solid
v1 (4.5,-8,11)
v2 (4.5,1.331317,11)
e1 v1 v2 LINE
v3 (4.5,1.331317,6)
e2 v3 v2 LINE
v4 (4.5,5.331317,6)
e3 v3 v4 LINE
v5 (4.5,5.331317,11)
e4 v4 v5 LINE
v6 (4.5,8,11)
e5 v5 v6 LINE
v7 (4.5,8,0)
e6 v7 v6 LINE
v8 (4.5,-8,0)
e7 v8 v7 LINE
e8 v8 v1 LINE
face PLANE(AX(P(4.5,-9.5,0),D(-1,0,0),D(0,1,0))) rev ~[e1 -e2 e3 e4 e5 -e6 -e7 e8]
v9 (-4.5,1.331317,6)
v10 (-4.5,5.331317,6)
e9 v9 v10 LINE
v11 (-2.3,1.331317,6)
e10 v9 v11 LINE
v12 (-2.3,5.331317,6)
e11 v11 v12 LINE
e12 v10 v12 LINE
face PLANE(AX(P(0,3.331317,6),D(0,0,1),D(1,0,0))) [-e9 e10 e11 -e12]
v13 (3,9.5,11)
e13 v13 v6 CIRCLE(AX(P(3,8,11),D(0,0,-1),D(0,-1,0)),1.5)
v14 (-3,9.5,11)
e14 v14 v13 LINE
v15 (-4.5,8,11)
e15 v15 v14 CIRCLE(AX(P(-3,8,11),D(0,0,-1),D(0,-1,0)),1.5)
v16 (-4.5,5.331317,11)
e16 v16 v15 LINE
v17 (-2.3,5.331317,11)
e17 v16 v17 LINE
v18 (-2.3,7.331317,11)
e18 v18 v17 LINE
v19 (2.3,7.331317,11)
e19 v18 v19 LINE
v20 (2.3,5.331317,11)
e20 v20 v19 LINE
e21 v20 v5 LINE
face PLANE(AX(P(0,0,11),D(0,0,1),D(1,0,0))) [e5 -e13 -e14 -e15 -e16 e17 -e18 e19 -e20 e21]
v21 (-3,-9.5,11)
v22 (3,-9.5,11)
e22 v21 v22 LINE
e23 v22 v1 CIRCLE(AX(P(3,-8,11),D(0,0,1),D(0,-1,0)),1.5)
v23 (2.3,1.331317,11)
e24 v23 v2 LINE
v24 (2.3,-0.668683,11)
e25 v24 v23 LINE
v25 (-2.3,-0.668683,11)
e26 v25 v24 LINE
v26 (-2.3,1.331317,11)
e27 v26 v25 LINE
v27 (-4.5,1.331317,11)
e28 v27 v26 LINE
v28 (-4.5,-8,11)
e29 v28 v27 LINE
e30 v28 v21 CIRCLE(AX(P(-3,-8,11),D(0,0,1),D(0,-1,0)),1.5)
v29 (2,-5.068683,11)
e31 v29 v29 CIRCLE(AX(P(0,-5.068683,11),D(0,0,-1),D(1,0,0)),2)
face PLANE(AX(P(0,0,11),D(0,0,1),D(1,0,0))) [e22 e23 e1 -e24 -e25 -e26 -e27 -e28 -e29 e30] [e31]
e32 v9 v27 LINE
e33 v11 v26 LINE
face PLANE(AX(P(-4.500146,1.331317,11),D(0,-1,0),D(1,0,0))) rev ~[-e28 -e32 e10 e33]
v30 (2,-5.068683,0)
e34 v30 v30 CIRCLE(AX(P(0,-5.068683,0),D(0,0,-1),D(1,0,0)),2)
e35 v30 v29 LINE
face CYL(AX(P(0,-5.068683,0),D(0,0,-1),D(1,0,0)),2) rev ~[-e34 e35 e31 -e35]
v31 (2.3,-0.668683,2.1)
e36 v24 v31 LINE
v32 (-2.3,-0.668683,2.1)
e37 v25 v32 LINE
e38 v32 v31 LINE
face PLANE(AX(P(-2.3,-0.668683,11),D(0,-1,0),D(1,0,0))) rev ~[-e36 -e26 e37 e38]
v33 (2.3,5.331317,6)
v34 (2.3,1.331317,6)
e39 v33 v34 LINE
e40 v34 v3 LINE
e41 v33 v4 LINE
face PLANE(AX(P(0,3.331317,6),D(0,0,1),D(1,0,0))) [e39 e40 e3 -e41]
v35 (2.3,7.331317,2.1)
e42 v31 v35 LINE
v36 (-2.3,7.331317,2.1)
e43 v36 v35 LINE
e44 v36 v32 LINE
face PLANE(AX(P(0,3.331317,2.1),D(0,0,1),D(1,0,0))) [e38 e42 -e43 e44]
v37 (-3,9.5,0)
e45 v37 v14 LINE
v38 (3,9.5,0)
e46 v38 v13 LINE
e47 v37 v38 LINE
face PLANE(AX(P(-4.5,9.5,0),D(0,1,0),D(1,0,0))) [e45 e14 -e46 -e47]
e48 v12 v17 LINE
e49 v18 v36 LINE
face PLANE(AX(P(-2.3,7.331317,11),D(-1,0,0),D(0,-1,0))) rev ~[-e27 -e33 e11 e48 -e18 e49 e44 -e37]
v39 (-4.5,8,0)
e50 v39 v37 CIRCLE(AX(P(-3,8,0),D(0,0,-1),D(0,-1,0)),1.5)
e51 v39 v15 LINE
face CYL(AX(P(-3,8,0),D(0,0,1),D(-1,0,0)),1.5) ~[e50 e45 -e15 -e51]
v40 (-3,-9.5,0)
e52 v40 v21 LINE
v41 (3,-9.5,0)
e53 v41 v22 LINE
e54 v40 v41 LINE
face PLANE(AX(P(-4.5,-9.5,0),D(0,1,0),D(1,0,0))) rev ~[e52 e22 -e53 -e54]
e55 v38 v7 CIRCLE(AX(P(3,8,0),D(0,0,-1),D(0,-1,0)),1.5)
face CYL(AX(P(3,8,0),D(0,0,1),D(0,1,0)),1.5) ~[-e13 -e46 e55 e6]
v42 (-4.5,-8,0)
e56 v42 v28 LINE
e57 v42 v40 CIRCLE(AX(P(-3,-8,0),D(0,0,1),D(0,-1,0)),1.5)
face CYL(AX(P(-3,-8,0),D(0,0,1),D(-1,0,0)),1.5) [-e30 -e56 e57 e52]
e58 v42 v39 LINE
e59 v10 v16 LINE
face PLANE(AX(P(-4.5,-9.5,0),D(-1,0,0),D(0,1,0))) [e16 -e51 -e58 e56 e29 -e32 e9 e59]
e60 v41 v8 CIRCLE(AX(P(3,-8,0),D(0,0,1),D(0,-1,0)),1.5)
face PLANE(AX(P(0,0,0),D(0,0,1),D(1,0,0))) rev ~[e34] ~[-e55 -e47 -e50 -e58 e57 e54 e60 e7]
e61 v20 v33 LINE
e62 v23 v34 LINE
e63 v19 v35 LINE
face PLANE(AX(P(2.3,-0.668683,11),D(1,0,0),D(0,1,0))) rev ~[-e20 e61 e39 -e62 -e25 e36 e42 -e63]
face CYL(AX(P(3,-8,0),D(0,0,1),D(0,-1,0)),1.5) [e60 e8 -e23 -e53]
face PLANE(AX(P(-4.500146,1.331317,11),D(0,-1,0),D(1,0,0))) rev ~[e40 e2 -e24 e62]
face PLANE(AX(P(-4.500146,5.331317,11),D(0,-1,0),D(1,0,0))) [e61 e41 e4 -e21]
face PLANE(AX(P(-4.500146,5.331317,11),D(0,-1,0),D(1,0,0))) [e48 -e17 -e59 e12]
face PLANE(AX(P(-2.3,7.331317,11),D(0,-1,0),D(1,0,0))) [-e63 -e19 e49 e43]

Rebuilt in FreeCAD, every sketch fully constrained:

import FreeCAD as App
import Part
import Sketcher
Q = App.Units.Quantity


def edges_at(feature, points):
    """Names of the edges that pass closest to the given points."""
    edges = feature.Shape.Edges
    near = lambda p: min(range(len(edges)), key=lambda i: edges[i].distToShape(Part.Vertex(*p))[0])
    return sorted({f"Edge{near(p) + 1}" for p in points})


def add_polygon(sketch, points):
    """Adds a closed chain of lines whose ends are joined by coincident constraints."""
    first, n = sketch.GeometryCount, len(points)
    for a, b in zip(points, points[1:] + points[:1]):
        sketch.addGeometry(Part.LineSegment(App.Vector(*a, 0), App.Vector(*b, 0)), False)
    for i in range(n):
        sketch.addConstraint(Sketcher.Constraint("Coincident", first + i, 2, first + (i + 1) % n, 1))

doc = App.newDocument("Part")
body = doc.addObject("PartDesign::Body", "Body")

# Sketch on XY plane
sketch1 = doc.addObject("Sketcher::SketchObject", "Sketch")
body.addObject(sketch1)
sketch1.AttachmentSupport = (doc.XY_Plane, [""])
sketch1.MapMode = "FlatFace"
add_polygon(sketch1, [(-4, 10), (-4, -10), (4, -10), (4, 10)])  # lines 0-3
sketch1.addConstraint(Sketcher.Constraint("Vertical", 0))
sketch1.addConstraint(Sketcher.Constraint("Horizontal", 1))
sketch1.addConstraint(Sketcher.Constraint("Vertical", 2))
sketch1.addConstraint(Sketcher.Constraint("Horizontal", 3))
sketch1.addConstraint(Sketcher.Constraint("Symmetric", 0, 2, 2, 2, -1, 1))
sketch1.addConstraint(Sketcher.Constraint("DistanceX", 1, 1, 1, 2, Q("9 mm")))
sketch1.addConstraint(Sketcher.Constraint("DistanceY", 0, 2, 0, 1, Q("19 mm")))
pad1 = doc.addObject("PartDesign::Pad", "Pad")
body.addObject(pad1)
pad1.Profile = sketch1
pad1.Length = 11

# Sketch on XY plane
sketch2 = doc.addObject("Sketcher::SketchObject", "Sketch001")
body.addObject(sketch2)
sketch2.AttachmentSupport = (doc.XY_Plane, [""])
sketch2.MapMode = "FlatFace"
sketch2.addGeometry(Part.Circle(App.Vector(0, -5.1, 0), App.Vector(0, 0, 1), 2), False)
sketch2.addConstraint(Sketcher.Constraint("PointOnObject", 0, 3, -2))
sketch2.addConstraint(Sketcher.Constraint("Diameter", 0, Q("4 mm")))
sketch2.addConstraint(Sketcher.Constraint("DistanceY", 0, 3, -1, 1, Q("5.068683 mm")))
pocket1 = doc.addObject("PartDesign::Pocket", "Pocket")
body.addObject(pocket1)
pocket1.Profile = sketch2
pocket1.Length = 11
pocket1.Reversed = True

# Sketch on XY plane
sketch3 = doc.addObject("Sketcher::SketchObject", "Sketch002")
body.addObject(sketch3)
sketch3.AttachmentSupport = (doc.XY_Plane, [""])
sketch3.MapMode = "FlatFace"
sketch3.AttachmentOffset = App.Placement(App.Vector(0, 0, 11), App.Rotation())
add_polygon(sketch3, [(2.3, 7.3), (-2.3, 7.3), (-2.3, -0.7), (2.3, -0.7)])  # lines 0-3
sketch3.addConstraint(Sketcher.Constraint("Horizontal", 0))
sketch3.addConstraint(Sketcher.Constraint("Vertical", 1))
sketch3.addConstraint(Sketcher.Constraint("Horizontal", 2))
sketch3.addConstraint(Sketcher.Constraint("Vertical", 3))
sketch3.addConstraint(Sketcher.Constraint("DistanceY", 1, 2, 1, 1, Q("8 mm")))
sketch3.addConstraint(Sketcher.Constraint("DistanceX", 0, 2, 0, 1, Q("4.6 mm")))
sketch3.addConstraint(Sketcher.Constraint("DistanceX", 0, 2, -1, 1, Q("2.3 mm")))
sketch3.addConstraint(Sketcher.Constraint("DistanceY", -1, 1, 0, 2, Q("7.331317 mm")))
pocket2 = doc.addObject("PartDesign::Pocket", "Pocket001")
body.addObject(pocket2)
pocket2.Profile = sketch3
pocket2.Length = 8.9

# Sketch on XY plane
sketch4 = doc.addObject("Sketcher::SketchObject", "Sketch003")
body.addObject(sketch4)
sketch4.AttachmentSupport = (doc.XY_Plane, [""])
sketch4.MapMode = "FlatFace"
sketch4.AttachmentOffset = App.Placement(App.Vector(0, 0, 11), App.Rotation())
add_polygon(sketch4, [(-4.5, 5.3), (-4.5, 1.3), (4.5, 1.3), (4.5, 5.3)])  # lines 0-3
sketch4.addConstraint(Sketcher.Constraint("Vertical", 0))
sketch4.addConstraint(Sketcher.Constraint("Horizontal", 1))
sketch4.addConstraint(Sketcher.Constraint("Vertical", 2))
sketch4.addConstraint(Sketcher.Constraint("Horizontal", 3))
sketch4.addConstraint(Sketcher.Constraint("DistanceY", 0, 2, 0, 1, Q("4 mm")))
sketch4.addConstraint(Sketcher.Constraint("DistanceX", 1, 1, 1, 2, Q("9.000292 mm")))
sketch4.addConstraint(Sketcher.Constraint("DistanceX", 0, 2, -1, 1, Q("4.500146 mm")))
sketch4.addConstraint(Sketcher.Constraint("DistanceY", -1, 1, 0, 2, Q("1.331317 mm")))
pocket3 = doc.addObject("PartDesign::Pocket", "Pocket002")
body.addObject(pocket3)
pocket3.Profile = sketch4
pocket3.Length = 5
doc.recompute()

fillet = doc.addObject("PartDesign::Fillet", "Fillet")
body.addObject(fillet)
fillet.Base = (pocket3, edges_at(pocket3, [
    (4.5, 9.5, 5.5),
    (-4.5, 9.5, 5.5),
    (4.5, -9.5, 5.5),
    (-4.5, -9.5, 5.5),
]))
fillet.Radius = 1.5

doc.recompute()
